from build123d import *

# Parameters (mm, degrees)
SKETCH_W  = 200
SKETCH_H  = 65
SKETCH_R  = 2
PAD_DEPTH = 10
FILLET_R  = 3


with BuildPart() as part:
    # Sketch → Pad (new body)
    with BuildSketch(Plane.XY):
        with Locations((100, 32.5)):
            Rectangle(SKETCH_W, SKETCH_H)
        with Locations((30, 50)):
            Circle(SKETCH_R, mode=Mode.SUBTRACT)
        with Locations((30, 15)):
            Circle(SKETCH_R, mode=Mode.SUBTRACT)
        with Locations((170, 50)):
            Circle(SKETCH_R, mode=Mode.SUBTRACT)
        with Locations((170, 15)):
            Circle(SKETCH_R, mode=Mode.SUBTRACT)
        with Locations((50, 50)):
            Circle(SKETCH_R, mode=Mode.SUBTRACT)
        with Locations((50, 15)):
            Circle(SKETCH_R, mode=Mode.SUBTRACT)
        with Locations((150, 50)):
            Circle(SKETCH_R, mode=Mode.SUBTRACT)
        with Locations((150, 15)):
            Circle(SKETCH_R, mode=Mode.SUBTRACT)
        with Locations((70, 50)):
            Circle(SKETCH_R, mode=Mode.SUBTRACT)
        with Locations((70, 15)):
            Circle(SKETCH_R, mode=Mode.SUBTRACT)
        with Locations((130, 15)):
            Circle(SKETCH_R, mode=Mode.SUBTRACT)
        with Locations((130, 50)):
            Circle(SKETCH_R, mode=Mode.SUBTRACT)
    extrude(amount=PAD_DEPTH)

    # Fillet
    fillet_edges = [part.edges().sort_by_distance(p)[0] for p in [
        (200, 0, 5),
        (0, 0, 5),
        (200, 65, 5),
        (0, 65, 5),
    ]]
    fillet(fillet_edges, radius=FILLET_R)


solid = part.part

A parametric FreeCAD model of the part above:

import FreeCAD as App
import Part
import Sketcher
from FreeCAD import Vector


def edges_at(feature, points):
    """Names of the edges that pass closest to the given points."""
    edges = feature.Shape.Edges
    near = lambda p: min(range(len(edges)), key=lambda i: edges[i].distToShape(Part.Vertex(*p))[0])
    return sorted({f"Edge{near(p) + 1}" for p in points})

doc = App.newDocument("Part")
params = doc.addObject("Spreadsheet::Sheet", "Params")
for row, (alias, value) in enumerate([
    ("sketch1_diameter", "4 mm"),
    ("sketch1_width", "200 mm"),
    ("sketch1_height", "65 mm"),
    ("pad1_length", "10 mm"),
    ("fillet_radius", "3 mm"),
], start=1):
    params.set(f"A{row}", alias)
    params.set(f"B{row}", "=" + value)
    params.setAlias(f"B{row}", alias)

body = doc.addObject("PartDesign::Body", "Body")

sketch1 = doc.addObject("Sketcher::SketchObject", "Sketch")
body.addObject(sketch1)
sketch1.AttachmentSupport = (doc.XY_Plane, [""])
sketch1.MapMode = "FlatFace"
sketch1.addGeometry(Part.LineSegment(Vector(0, 65, 0), Vector(0, 0, 0)), False)
sketch1.addGeometry(Part.LineSegment(Vector(0, 0, 0), Vector(200, 0, 0)), False)
sketch1.addGeometry(Part.LineSegment(Vector(200, 0, 0), Vector(200, 65, 0)), False)
sketch1.addGeometry(Part.LineSegment(Vector(200, 65, 0), Vector(0, 65, 0)), False)
sketch1.addGeometry(Part.Circle(Vector(30, 15, 0), Vector(0, 0, 1), 2), False)
sketch1.addGeometry(Part.Circle(Vector(50, 15, 0), Vector(0, 0, 1), 2), False)
sketch1.addGeometry(Part.Circle(Vector(70, 15, 0), Vector(0, 0, 1), 2), False)
sketch1.addGeometry(Part.Circle(Vector(130, 15, 0), Vector(0, 0, 1), 2), False)
sketch1.addGeometry(Part.Circle(Vector(150, 15, 0), Vector(0, 0, 1), 2), False)
sketch1.addGeometry(Part.Circle(Vector(170, 15, 0), Vector(0, 0, 1), 2), False)
sketch1.addGeometry(Part.Circle(Vector(30, 50, 0), Vector(0, 0, 1), 2), False)
sketch1.addGeometry(Part.Circle(Vector(50, 50, 0), Vector(0, 0, 1), 2), False)
sketch1.addGeometry(Part.Circle(Vector(70, 50, 0), Vector(0, 0, 1), 2), False)
sketch1.addGeometry(Part.Circle(Vector(130, 50, 0), Vector(0, 0, 1), 2), False)
sketch1.addGeometry(Part.Circle(Vector(150, 50, 0), Vector(0, 0, 1), 2), False)
sketch1.addGeometry(Part.Circle(Vector(170, 50, 0), Vector(0, 0, 1), 2), False)
sketch1.addConstraint(Sketcher.Constraint("Coincident", 0, 2, 1, 1))
sketch1.addConstraint(Sketcher.Constraint("Coincident", 1, 2, 2, 1))
sketch1.addConstraint(Sketcher.Constraint("Coincident", 2, 2, 3, 1))
sketch1.addConstraint(Sketcher.Constraint("Coincident", 3, 2, 0, 1))
sketch1.addConstraint(Sketcher.Constraint("Vertical", 0))
sketch1.addConstraint(Sketcher.Constraint("Horizontal", 1))
sketch1.addConstraint(Sketcher.Constraint("Vertical", 2))
sketch1.addConstraint(Sketcher.Constraint("Horizontal", 3))
sketch1.addConstraint(Sketcher.Constraint("Coincident", 0, 2, -1, 1))
sketch1.addConstraint(Sketcher.Constraint("Equal", 4, 5))
sketch1.addConstraint(Sketcher.Constraint("Equal", 5, 6))
sketch1.addConstraint(Sketcher.Constraint("Equal", 6, 7))
sketch1.addConstraint(Sketcher.Constraint("Equal", 7, 8))
sketch1.addConstraint(Sketcher.Constraint("Equal", 8, 9))
sketch1.addConstraint(Sketcher.Constraint("Equal", 9, 10))
sketch1.addConstraint(Sketcher.Constraint("Equal", 10, 11))
sketch1.addConstraint(Sketcher.Constraint("Equal", 11, 12))
sketch1.addConstraint(Sketcher.Constraint("Equal", 12, 13))
sketch1.addConstraint(Sketcher.Constraint("Equal", 13, 14))
sketch1.addConstraint(Sketcher.Constraint("Equal", 14, 15))
sketch1.addConstraint(Sketcher.Constraint("Horizontal", 4, 3, 5, 3))
sketch1.addConstraint(Sketcher.Constraint("Horizontal", 5, 3, 6, 3))
sketch1.addConstraint(Sketcher.Constraint("Horizontal", 6, 3, 7, 3))
sketch1.addConstraint(Sketcher.Constraint("Horizontal", 7, 3, 8, 3))
sketch1.addConstraint(Sketcher.Constraint("Horizontal", 8, 3, 9, 3))
sketch1.addConstraint(Sketcher.Constraint("Horizontal", 10, 3, 11, 3))
sketch1.addConstraint(Sketcher.Constraint("Horizontal", 11, 3, 12, 3))
sketch1.addConstraint(Sketcher.Constraint("Horizontal", 12, 3, 13, 3))
sketch1.addConstraint(Sketcher.Constraint("Horizontal", 13, 3, 14, 3))
sketch1.addConstraint(Sketcher.Constraint("Horizontal", 14, 3, 15, 3))
sketch1.addConstraint(Sketcher.Constraint("Vertical", 4, 3, 10, 3))
sketch1.addConstraint(Sketcher.Constraint("Vertical", 5, 3, 11, 3))
sketch1.addConstraint(Sketcher.Constraint("Vertical", 6, 3, 12, 3))
sketch1.addConstraint(Sketcher.Constraint("Vertical", 7, 3, 13, 3))
sketch1.addConstraint(Sketcher.Constraint("Vertical", 8, 3, 14, 3))
sketch1.addConstraint(Sketcher.Constraint("Vertical", 9, 3, 15, 3))
sketch1.addConstraint(Sketcher.Constraint("Diameter", 4, 4.0))
sketch1.addConstraint(Sketcher.Constraint("DistanceX", 1, 1, 1, 2, 200.0))
sketch1.addConstraint(Sketcher.Constraint("DistanceY", 0, 2, 0, 1, 65.0))
sketch1.addConstraint(Sketcher.Constraint("DistanceX", -1, 1, 4, 3, 30.0))
sketch1.addConstraint(Sketcher.Constraint("DistanceY", -1, 1, 4, 3, 15.0))
sketch1.addConstraint(Sketcher.Constraint("DistanceX", -1, 1, 5, 3, 50.0))
sketch1.addConstraint(Sketcher.Constraint("DistanceX", -1, 1, 6, 3, 70.0))
sketch1.addConstraint(Sketcher.Constraint("DistanceX", -1, 1, 7, 3, 130.0))
sketch1.addConstraint(Sketcher.Constraint("DistanceX", -1, 1, 8, 3, 150.0))
sketch1.addConstraint(Sketcher.Constraint("DistanceX", -1, 1, 9, 3, 170.0))
sketch1.addConstraint(Sketcher.Constraint("DistanceY", -1, 1, 10, 3, 50.0))
sketch1.setExpression("Constraints[36]", "Params.sketch1_diameter")
sketch1.setExpression("Constraints[37]", "Params.sketch1_width")
sketch1.setExpression("Constraints[38]", "Params.sketch1_height")
pad1 = doc.addObject("PartDesign::Pad", "Pad")
body.addObject(pad1)
pad1.Profile = sketch1
pad1.setExpression("Length", "Params.pad1_length")
doc.recompute()

fillet = doc.addObject("PartDesign::Fillet", "Fillet")
body.addObject(fillet)
fillet.Base = (pad1, edges_at(pad1, [
    (200, 0, 5),
    (0, 0, 5),
    (200, 65, 5),
    (0, 65, 5),
]))
fillet.setExpression("Radius", "Params.fillet_radius")

doc.recompute()
